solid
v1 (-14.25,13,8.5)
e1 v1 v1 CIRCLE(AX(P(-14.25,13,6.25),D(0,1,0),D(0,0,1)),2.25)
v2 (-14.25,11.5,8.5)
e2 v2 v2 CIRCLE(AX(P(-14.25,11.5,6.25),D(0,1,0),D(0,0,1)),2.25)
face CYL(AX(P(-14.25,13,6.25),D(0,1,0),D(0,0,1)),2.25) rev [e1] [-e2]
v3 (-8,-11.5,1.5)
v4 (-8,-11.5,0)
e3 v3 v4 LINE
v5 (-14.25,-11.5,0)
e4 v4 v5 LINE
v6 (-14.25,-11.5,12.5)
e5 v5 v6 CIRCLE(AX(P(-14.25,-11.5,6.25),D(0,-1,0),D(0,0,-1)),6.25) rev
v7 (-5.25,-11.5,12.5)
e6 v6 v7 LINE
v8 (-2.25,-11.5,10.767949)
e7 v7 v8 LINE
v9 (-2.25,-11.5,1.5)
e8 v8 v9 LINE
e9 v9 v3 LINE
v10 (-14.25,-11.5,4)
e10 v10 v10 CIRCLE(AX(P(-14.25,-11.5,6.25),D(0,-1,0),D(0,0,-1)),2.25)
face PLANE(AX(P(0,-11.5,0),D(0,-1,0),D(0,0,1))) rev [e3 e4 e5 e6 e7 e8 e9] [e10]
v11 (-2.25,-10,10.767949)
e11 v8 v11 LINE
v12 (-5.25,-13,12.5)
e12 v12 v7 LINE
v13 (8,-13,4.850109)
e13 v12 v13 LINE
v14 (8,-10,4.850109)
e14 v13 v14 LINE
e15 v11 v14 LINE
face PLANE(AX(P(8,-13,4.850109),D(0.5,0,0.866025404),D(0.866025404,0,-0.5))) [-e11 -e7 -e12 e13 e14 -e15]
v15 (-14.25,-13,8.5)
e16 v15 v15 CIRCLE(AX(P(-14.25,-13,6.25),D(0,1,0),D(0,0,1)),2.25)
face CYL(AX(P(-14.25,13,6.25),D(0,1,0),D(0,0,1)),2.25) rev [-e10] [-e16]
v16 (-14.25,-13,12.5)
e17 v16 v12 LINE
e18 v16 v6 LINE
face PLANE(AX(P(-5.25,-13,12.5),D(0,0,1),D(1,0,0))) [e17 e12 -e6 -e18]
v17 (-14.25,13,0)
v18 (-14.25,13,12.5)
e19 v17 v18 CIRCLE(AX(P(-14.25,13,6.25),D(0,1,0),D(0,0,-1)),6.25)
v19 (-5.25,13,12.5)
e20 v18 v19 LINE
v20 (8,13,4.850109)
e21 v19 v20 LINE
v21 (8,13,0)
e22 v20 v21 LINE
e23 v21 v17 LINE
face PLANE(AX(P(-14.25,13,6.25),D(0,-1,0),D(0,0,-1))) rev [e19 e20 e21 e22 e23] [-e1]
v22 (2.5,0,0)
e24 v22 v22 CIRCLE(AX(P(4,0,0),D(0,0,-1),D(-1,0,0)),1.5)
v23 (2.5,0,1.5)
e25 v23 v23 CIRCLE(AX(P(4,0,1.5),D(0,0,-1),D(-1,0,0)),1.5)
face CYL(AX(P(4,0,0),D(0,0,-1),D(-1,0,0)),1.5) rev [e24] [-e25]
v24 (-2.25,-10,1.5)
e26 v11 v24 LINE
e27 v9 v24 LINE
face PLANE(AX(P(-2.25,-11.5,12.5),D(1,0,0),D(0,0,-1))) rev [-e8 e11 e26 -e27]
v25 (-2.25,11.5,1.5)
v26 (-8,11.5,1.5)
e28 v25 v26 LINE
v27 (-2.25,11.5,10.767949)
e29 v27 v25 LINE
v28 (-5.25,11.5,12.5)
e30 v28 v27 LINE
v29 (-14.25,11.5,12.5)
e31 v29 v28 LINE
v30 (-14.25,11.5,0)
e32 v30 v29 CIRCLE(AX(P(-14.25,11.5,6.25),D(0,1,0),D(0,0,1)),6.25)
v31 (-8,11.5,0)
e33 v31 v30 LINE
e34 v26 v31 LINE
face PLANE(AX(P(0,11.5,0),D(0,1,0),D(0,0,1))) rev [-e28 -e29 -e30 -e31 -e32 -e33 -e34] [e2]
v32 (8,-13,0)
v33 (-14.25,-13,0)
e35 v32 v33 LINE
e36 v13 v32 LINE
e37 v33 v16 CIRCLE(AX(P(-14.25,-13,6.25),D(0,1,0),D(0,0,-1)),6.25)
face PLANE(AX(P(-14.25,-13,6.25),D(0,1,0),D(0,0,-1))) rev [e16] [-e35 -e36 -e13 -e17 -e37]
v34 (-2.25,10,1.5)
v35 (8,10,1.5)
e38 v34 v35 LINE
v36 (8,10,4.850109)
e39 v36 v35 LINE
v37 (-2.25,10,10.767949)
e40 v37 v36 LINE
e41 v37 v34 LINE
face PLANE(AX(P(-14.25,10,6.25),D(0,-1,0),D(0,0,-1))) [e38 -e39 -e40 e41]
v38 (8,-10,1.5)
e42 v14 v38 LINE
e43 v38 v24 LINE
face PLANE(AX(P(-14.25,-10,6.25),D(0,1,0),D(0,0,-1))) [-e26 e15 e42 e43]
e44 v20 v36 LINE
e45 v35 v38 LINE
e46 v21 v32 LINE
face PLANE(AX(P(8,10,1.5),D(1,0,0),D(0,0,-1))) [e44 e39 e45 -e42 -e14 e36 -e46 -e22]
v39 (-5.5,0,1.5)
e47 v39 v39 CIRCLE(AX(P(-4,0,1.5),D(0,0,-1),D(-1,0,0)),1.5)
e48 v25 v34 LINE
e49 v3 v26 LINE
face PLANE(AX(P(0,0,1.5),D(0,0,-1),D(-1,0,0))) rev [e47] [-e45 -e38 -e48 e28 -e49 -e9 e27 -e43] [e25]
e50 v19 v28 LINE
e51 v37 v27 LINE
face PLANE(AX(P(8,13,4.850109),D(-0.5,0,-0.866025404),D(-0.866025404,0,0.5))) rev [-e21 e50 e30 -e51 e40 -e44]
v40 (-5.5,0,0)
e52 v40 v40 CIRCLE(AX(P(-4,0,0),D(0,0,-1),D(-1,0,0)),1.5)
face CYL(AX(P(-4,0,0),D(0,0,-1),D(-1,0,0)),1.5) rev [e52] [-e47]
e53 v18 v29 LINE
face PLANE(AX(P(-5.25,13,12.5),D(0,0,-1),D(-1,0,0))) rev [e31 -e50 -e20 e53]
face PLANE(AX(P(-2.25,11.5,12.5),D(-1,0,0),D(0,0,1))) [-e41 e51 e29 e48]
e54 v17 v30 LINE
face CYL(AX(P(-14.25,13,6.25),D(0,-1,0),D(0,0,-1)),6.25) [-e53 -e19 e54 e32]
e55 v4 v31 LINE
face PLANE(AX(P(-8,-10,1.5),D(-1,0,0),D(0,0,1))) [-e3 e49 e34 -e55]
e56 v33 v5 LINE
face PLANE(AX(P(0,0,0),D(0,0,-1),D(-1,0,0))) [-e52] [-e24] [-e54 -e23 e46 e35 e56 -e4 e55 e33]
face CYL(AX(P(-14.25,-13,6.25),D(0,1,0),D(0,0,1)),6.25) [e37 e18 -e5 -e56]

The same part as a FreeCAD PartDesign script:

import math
import FreeCAD as App
import Part
import Sketcher
from FreeCAD import Vector
Q = App.Units.Quantity


def add_polygon(sketch, points):
    """Adds a closed chain of lines whose ends are joined by coincident constraints."""
    first, n = sketch.GeometryCount, len(points)
    for a, b in zip(points, points[1:] + points[:1]):
        sketch.addGeometry(Part.LineSegment(App.Vector(*a, 0), App.Vector(*b, 0)), False)
    for i in range(n):
        sketch.addConstraint(Sketcher.Constraint("Coincident", first + i, 2, first + (i + 1) % n, 1))

doc = App.newDocument("Part")
body = doc.addObject("PartDesign::Body", "Body")

# Sketch on XY plane
sketch1 = doc.addObject("Sketcher::SketchObject", "Sketch")
body.addObject(sketch1)
sketch1.AttachmentSupport = (doc.XY_Plane, [""])
sketch1.MapMode = "FlatFace"
add_polygon(sketch1, [(8, 10), (8, -10), (-8, -10), (-8, 10)])  # lines 0-3
sketch1.addConstraint([
    Sketcher.Constraint("Vertical", 0),
    Sketcher.Constraint("Horizontal", 1),
    Sketcher.Constraint("Vertical", 2),
    Sketcher.Constraint("Horizontal", 3),
    Sketcher.Constraint("Symmetric", 0, 2, 2, 2, -1, 1),
    Sketcher.Constraint("DistanceX", 1, 2, 1, 1, Q("16 mm")),
    Sketcher.Constraint("DistanceY", 0, 2, 0, 1, Q("20 mm")),
])
pad1 = doc.addObject("PartDesign::Pad", "Pad")
body.addObject(pad1)
pad1.Profile = sketch1
pad1.Length = 1.5

# Sketch on XZ plane
sketch2 = doc.addObject("Sketcher::SketchObject", "Sketch001")
body.addObject(sketch2)
sketch2.AttachmentSupport = (doc.XZ_Plane, [""])
sketch2.MapMode = "FlatFace"
sketch2.AttachmentOffset = App.Placement(Vector(0, 0, -10), App.Rotation())
sketch2.addGeometry([
    Part.LineSegment(Vector(8, 0, 0), Vector(-14.2, 0, 0)),  # 0
    Part.ArcOfCircle(Part.Circle(Vector(-14.2, 6.2, 0), Vector(0, 0, 1), 6.2), math.radians(90), math.radians(270)),  # 1
    Part.LineSegment(Vector(-14.2, 12.5, 0), Vector(-5.2, 12.5, 0)),  # 2
    Part.LineSegment(Vector(-5.2, 12.5, 0), Vector(8, 4.9, 0)),  # 3
    Part.LineSegment(Vector(8, 4.9, 0), Vector(8, 0, 0)),  # 4
], False)
sketch2.addConstraint([
    Sketcher.Constraint("Tangent", 0, 2, 1, 2),
    Sketcher.Constraint("Tangent", 1, 1, 2, 1),
    Sketcher.Constraint("Coincident", 2, 2, 3, 1),
    Sketcher.Constraint("Coincident", 3, 2, 4, 1),
    Sketcher.Constraint("Coincident", 4, 2, 0, 1),
    Sketcher.Constraint("Horizontal", 0),
    Sketcher.Constraint("Horizontal", 2),
    Sketcher.Constraint("Vertical", 4),
    Sketcher.Constraint("PointOnObject", 0, 2, -1),
    Sketcher.Constraint("DistanceX", 2, 1, 2, 2, Q("9 mm")),
    Sketcher.Constraint("Angle", 3, Q("-30 deg")),
    Sketcher.Constraint("Radius", 1, Q("6.25 mm")),
    Sketcher.Constraint("DistanceX", -1, 1, 3, 2, Q("8 mm")),
    Sketcher.Constraint("DistanceX", 0, 2, 0, 1, Q("22.25 mm")),
])
pad2 = doc.addObject("PartDesign::Pad", "Pad001")
body.addObject(pad2)
pad2.Profile = sketch2
pad2.Length = 3
pad2.Reversed = True
doc.recompute()

mirrored = doc.addObject("PartDesign::Mirrored", "Mirrored")
body.addObject(mirrored)
mirrored.Originals = [pad2]
mirrored.MirrorPlane = (doc.XZ_Plane, [""])
body.Tip = mirrored

# Sketch on XZ plane
sketch3 = doc.addObject("Sketcher::SketchObject", "Sketch002")
body.addObject(sketch3)
sketch3.AttachmentSupport = (doc.XZ_Plane, [""])
sketch3.MapMode = "FlatFace"
sketch3.AttachmentOffset = App.Placement(Vector(0, 0, -10), App.Rotation())
add_polygon(sketch3, [(-20.5, 12.5), (-2.2, 12.5), (-2.2, 1.5), (-8, 1.5), (-8, 0), (-20.5, 0)])  # lines 0-5
sketch3.addConstraint([
    Sketcher.Constraint("Horizontal", 0),
    Sketcher.Constraint("Vertical", 1),
    Sketcher.Constraint("Horizontal", 2),
    Sketcher.Constraint("Vertical", 3),
    Sketcher.Constraint("Horizontal", 4),
    Sketcher.Constraint("Vertical", 5),
    Sketcher.Constraint("PointOnObject", 3, 2, -1),
    Sketcher.Constraint("Equal", 4, 5),
    Sketcher.Constraint("DistanceY", 1, 2, 1, 1, Q("11 mm")),
    Sketcher.Constraint("DistanceX", 4, 2, 4, 1, Q("12.5 mm")),
    Sketcher.Constraint("DistanceX", 2, 2, -1, 1, Q("8 mm")),
    Sketcher.Constraint("DistanceX", 0, 1, 0, 2, Q("18.25 mm")),
])
pocket1 = doc.addObject("PartDesign::Pocket", "Pocket")
body.addObject(pocket1)
pocket1.Profile = sketch3
pocket1.Length = 1.5
doc.recompute()

mirrored2 = doc.addObject("PartDesign::Mirrored", "Mirrored001")
body.addObject(mirrored2)
mirrored2.Originals = [pocket1]
mirrored2.MirrorPlane = (doc.XZ_Plane, [""])
body.Tip = mirrored2

# Sketch on XZ plane
sketch4 = doc.addObject("Sketcher::SketchObject", "Sketch003")
body.addObject(sketch4)
sketch4.AttachmentSupport = (doc.XZ_Plane, [""])
sketch4.MapMode = "FlatFace"
sketch4.AttachmentOffset = App.Placement(Vector(0, 0, -13), App.Rotation())
sketch4.addGeometry(Part.Circle(Vector(-14.2, 6.2, 0), Vector(0, 0, 1), 2.2), False)
sketch4.addConstraint([
    Sketcher.Constraint("Diameter", 0, Q("4.5 mm")),
    Sketcher.Constraint("DistanceX", 0, 3, -1, 1, Q("14.25 mm")),
    Sketcher.Constraint("DistanceY", -1, 1, 0, 3, Q("6.25 mm")),
])
doc.recompute()
hole = doc.addObject("PartDesign::Hole", "Hole")
body.addObject(hole)
hole.Profile = sketch4
hole.ThreadType = "None"
hole.Diameter = 4.5
hole.DepthType = "ThroughAll"
hole.Reversed = True
doc.recompute()

mirrored3 = doc.addObject("PartDesign::Mirrored", "Mirrored002")
body.addObject(mirrored3)
mirrored3.Originals = [hole]
mirrored3.MirrorPlane = (doc.XZ_Plane, [""])
body.Tip = mirrored3

# Sketch on XY plane
sketch5 = doc.addObject("Sketcher::SketchObject", "Sketch004")
body.addObject(sketch5)
sketch5.AttachmentSupport = (doc.XY_Plane, [""])
sketch5.MapMode = "FlatFace"
sketch5.addGeometry([
    Part.Circle(Vector(4, 0, 0), Vector(0, 0, 1), 1.5),
    Part.Circle(Vector(-4, 0, 0), Vector(0, 0, 1), 1.5),
], False)
sketch5.addConstraint([
    Sketcher.Constraint("Equal", 0, 1),
    Sketcher.Constraint("Symmetric", 0, 3, 1, 3, -1, 1),
    Sketcher.Constraint("PointOnObject", 0, 3, -1),
    Sketcher.Constraint("Diameter", 0, Q("3 mm")),
    Sketcher.Constraint("DistanceX", -1, 1, 0, 3, Q("4 mm")),
])
doc.recompute()
hole2 = doc.addObject("PartDesign::Hole", "Hole001")
body.addObject(hole2)
hole2.Profile = sketch5
hole2.ThreadType = "None"
hole2.Diameter = 3
hole2.DepthType = "Dimension"
hole2.Depth = 12.5
hole2.DrillPoint = "Flat"
hole2.Reversed = True

doc.recompute()
